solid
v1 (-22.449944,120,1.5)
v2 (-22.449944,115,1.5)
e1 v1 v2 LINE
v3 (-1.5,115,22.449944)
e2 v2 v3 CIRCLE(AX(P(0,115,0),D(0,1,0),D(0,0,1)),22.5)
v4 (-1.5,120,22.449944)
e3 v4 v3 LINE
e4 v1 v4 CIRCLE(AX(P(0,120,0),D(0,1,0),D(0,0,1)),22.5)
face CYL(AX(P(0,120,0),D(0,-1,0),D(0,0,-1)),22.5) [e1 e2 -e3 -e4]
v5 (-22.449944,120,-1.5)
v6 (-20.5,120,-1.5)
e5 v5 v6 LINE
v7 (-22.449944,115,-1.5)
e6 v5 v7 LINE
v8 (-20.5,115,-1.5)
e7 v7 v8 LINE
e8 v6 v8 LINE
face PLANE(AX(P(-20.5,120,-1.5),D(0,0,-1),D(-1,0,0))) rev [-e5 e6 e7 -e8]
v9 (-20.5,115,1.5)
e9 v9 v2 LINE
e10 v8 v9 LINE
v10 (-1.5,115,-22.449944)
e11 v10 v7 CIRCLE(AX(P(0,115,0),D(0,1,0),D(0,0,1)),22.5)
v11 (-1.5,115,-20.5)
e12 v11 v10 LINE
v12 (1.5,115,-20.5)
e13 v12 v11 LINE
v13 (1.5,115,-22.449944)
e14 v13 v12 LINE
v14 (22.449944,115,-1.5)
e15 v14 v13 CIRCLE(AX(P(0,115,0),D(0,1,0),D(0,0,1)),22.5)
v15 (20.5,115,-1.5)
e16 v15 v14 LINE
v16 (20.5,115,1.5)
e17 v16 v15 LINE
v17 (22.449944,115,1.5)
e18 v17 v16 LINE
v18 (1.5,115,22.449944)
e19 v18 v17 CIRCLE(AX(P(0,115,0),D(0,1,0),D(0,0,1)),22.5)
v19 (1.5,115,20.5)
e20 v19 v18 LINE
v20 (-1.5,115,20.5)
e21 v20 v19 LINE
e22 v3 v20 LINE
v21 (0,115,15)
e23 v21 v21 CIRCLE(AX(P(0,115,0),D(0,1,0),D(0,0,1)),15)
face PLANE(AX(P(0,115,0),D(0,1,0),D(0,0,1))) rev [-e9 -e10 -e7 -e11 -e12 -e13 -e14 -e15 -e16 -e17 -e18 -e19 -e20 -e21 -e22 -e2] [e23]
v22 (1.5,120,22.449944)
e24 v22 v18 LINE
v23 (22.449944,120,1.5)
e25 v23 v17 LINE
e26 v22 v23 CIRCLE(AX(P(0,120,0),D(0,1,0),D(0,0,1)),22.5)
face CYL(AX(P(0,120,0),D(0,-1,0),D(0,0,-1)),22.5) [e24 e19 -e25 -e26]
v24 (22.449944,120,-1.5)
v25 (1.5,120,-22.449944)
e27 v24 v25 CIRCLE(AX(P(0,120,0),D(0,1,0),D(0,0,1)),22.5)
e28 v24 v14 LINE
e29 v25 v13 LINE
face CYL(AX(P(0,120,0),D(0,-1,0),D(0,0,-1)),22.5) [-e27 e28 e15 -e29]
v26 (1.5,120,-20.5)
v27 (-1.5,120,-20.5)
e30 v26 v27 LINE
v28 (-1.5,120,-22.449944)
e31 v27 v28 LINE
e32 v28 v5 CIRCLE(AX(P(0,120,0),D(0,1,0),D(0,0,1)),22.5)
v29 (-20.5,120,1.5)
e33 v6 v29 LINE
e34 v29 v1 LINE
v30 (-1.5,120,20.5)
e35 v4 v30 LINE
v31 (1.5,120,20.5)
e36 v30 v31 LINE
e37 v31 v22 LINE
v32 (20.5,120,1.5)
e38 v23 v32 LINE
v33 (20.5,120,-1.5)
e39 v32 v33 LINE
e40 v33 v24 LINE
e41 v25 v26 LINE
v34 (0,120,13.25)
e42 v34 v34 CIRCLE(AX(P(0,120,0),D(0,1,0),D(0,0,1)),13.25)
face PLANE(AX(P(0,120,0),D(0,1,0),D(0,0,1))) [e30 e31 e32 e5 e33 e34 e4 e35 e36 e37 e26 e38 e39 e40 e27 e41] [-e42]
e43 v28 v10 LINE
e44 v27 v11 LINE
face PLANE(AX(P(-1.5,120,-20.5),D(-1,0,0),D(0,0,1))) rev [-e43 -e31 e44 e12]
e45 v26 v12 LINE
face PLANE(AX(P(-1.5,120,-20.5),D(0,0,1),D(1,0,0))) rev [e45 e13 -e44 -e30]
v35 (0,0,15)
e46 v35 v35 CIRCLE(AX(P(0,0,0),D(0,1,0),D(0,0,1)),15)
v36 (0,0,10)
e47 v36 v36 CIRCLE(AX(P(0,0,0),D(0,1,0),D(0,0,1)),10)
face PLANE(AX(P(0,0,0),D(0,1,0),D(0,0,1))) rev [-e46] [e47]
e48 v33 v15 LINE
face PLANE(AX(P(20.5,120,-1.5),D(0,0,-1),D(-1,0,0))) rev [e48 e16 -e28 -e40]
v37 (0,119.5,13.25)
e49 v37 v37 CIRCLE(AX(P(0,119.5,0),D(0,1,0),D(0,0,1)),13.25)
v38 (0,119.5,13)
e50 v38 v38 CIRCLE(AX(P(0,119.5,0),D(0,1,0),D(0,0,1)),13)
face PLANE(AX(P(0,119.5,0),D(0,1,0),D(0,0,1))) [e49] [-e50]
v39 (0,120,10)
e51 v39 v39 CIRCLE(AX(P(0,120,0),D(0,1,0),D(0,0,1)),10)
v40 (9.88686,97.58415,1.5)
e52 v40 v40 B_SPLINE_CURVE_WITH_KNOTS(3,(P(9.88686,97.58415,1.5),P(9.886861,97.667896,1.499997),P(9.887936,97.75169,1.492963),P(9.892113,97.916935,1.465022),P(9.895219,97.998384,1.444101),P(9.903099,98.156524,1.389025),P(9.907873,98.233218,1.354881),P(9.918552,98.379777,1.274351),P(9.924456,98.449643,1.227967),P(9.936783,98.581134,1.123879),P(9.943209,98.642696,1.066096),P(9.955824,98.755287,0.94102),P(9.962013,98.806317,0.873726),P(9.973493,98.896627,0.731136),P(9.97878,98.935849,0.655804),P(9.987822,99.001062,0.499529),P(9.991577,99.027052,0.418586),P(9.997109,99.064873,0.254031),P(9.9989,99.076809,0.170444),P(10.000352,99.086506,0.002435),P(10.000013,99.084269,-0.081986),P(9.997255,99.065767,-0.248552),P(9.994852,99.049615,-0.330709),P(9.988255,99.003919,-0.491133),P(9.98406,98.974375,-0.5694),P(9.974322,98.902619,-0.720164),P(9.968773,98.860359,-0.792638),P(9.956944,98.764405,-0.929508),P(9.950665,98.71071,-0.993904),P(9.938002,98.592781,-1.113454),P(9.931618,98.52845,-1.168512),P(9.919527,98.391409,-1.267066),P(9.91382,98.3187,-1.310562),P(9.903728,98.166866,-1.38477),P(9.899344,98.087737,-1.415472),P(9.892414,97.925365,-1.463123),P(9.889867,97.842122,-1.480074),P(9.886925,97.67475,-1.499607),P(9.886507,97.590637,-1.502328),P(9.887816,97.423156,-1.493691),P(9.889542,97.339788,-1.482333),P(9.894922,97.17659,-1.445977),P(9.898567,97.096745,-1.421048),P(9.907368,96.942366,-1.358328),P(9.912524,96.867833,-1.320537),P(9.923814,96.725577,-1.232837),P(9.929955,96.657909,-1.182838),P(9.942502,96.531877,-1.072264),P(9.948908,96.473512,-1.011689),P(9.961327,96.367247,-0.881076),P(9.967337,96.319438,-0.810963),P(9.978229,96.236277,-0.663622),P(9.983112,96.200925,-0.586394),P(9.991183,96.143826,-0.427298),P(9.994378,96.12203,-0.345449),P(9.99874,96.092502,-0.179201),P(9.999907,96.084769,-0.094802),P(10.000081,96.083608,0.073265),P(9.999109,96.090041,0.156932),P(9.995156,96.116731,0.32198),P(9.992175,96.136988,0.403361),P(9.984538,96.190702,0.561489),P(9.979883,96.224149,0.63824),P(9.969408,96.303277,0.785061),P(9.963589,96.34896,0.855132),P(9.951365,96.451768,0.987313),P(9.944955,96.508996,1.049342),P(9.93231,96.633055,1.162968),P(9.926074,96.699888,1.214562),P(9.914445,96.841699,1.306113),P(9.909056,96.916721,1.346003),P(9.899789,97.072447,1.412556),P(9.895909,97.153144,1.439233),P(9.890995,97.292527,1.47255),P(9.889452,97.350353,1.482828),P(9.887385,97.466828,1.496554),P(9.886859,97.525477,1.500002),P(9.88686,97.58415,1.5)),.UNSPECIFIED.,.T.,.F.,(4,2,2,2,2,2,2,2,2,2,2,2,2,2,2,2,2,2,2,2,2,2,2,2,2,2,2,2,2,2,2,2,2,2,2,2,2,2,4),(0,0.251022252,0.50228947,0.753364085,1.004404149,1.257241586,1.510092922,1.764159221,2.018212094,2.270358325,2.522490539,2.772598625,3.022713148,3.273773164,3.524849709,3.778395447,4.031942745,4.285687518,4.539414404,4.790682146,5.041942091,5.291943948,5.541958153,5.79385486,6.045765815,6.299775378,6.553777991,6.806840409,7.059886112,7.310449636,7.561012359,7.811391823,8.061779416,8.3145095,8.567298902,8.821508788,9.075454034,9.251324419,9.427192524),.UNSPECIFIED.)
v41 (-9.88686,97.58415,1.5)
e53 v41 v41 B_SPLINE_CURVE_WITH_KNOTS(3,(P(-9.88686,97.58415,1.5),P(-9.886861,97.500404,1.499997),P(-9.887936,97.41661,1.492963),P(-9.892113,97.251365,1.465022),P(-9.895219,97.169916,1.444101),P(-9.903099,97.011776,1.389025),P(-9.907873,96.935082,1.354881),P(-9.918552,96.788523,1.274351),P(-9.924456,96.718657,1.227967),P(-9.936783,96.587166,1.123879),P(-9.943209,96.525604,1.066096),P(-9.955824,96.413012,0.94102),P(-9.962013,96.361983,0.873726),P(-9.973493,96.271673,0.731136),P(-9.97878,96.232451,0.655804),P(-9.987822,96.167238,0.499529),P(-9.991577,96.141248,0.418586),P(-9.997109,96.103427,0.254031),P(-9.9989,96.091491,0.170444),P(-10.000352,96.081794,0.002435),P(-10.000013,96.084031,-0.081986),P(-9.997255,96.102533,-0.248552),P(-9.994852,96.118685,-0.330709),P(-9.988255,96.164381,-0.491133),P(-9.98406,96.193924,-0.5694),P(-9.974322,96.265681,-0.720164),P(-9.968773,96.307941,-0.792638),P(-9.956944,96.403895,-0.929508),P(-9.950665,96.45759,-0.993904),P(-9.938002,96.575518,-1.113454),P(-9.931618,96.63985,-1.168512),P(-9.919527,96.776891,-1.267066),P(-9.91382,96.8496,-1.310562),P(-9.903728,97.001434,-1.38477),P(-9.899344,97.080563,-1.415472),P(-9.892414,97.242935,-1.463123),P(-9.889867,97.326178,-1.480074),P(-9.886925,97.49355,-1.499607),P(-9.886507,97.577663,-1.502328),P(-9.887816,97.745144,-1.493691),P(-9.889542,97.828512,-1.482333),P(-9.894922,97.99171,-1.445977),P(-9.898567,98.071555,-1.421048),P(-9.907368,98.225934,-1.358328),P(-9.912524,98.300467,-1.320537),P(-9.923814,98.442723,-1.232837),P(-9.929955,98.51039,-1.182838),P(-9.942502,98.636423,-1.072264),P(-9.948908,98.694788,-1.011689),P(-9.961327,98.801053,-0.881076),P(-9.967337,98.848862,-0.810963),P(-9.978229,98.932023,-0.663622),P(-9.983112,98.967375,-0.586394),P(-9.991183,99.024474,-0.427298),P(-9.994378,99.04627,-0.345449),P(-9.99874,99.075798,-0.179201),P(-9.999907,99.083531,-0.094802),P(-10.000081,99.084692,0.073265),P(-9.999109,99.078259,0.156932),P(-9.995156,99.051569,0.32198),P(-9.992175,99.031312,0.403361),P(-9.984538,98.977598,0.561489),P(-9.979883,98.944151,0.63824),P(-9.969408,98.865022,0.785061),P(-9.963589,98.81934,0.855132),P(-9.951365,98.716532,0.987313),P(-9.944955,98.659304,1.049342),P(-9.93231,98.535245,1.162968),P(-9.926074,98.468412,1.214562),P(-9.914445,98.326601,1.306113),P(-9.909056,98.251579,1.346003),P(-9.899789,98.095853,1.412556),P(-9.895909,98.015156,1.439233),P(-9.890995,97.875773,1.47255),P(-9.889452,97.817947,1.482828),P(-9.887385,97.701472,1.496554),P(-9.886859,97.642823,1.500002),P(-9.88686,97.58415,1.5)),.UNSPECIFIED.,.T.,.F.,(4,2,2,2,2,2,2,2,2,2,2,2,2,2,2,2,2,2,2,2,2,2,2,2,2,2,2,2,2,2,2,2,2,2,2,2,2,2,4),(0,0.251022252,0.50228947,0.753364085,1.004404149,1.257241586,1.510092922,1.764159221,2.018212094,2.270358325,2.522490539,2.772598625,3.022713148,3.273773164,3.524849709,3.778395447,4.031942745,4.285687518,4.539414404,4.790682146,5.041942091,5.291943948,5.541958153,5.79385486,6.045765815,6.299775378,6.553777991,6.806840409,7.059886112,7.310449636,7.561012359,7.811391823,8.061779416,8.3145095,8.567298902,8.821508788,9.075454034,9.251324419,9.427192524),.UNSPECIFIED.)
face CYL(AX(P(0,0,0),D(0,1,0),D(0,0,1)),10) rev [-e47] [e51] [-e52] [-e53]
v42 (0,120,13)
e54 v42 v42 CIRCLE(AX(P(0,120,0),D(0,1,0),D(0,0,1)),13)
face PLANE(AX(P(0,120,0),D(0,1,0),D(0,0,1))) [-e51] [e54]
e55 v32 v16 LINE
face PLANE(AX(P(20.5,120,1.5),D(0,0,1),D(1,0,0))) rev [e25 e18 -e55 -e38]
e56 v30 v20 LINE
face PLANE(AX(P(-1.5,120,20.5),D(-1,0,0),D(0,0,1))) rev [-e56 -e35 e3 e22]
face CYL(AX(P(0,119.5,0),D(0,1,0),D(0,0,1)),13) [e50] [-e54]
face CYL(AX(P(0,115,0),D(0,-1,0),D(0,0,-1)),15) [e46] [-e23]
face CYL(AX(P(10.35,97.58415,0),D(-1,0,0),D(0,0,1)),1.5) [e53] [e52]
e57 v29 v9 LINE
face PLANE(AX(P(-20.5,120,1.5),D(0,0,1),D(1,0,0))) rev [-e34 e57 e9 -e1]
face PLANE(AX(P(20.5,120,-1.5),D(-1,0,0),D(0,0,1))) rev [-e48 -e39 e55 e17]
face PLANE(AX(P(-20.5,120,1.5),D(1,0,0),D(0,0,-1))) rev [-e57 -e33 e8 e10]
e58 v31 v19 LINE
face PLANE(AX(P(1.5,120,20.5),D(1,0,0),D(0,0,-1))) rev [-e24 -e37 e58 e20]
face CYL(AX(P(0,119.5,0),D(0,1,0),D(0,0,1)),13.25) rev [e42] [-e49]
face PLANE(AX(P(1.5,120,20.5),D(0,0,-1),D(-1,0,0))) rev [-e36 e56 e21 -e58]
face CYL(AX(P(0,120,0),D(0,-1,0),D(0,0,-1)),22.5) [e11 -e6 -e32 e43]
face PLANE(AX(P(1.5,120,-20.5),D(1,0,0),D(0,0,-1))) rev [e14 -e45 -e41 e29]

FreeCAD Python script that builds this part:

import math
import FreeCAD as App
import Part
import Sketcher

doc = App.newDocument("Part")
params = doc.addObject("Spreadsheet::Sheet", "Params")
for row, (alias, value) in enumerate([
    ("sketch1_diameter", "30 mm"),
    ("pad1_length", "115 mm"),
    ("sketch2_radius", "22.5 mm"),
    ("sketch2_width", "3 mm"),
    ("pad2_length", "5 mm"),
    ("sketch3_diameter", "26 mm"),
    ("sketch3_diameter2", "26.5 mm"),
    ("pocket1_length", "0.5 mm"),
    ("sketch4_diameter", "20 mm"),
    ("sketch5_diameter", "3 mm"),
    ("pad3_length", "20.7 mm"),
], start=1):
    params.set(f"A{row}", alias)
    params.set(f"B{row}", "=" + value)
    params.setAlias(f"B{row}", alias)

body = doc.addObject("PartDesign::Body", "Body")

# Sketch on XZ plane
sketch1 = body.newObject("Sketcher::SketchObject", "Sketch")
sketch1.AttachmentSupport = (doc.getObject("XZ_Plane"), [""])
sketch1.MapMode = "FlatFace"
sketch1.addGeometry(Part.Circle(App.Vector(0, 0, 0), App.Vector(0, 0, 1), 15), False)
sketch1.addConstraint([
    Sketcher.Constraint("Coincident", 0, 3, -1, 1),
    Sketcher.Constraint("Diameter", 0, 30.0),
])
sketch1.setExpression("Constraints[1]", "Params.sketch1_diameter")
pad1 = body.newObject("PartDesign::Pad", "Pad")
pad1.Profile = sketch1
pad1.setExpression("Length", "Params.pad1_length")
pad1.Reversed = True

# Sketch on XZ plane
sketch2 = body.newObject("Sketcher::SketchObject", "Sketch001")
sketch2.AttachmentSupport = (doc.getObject("XZ_Plane"), [""])
sketch2.MapMode = "FlatFace"
sketch2.AttachmentOffset = App.Placement(App.Vector(0, 0, -115), App.Rotation())
sketch2.addGeometry([
    Part.LineSegment(App.Vector(1.5, -20.5, 0), App.Vector(-1.5, -20.5, 0)),  # 0
    Part.LineSegment(App.Vector(-1.5, -20.5, 0), App.Vector(-1.5, -22.449944, 0)),  # 1
    Part.ArcOfCircle(Part.Circle(App.Vector(0, 0, 0), App.Vector(0, 0, 1), 22.5), math.radians(-176.177446), math.radians(-93.822554)),  # 2
    Part.LineSegment(App.Vector(-22.449944, -1.5, 0), App.Vector(-20.5, -1.5, 0)),  # 3
    Part.LineSegment(App.Vector(-20.5, -1.5, 0), App.Vector(-20.5, 1.5, 0)),  # 4
    Part.LineSegment(App.Vector(-20.5, 1.5, 0), App.Vector(-22.449944, 1.5, 0)),  # 5
    Part.ArcOfCircle(Part.Circle(App.Vector(0, 0, 0), App.Vector(0, 0, 1), 22.5), math.radians(93.822554), math.radians(176.177446)),  # 6
    Part.LineSegment(App.Vector(-1.5, 22.449944, 0), App.Vector(-1.5, 20.5, 0)),  # 7
    Part.LineSegment(App.Vector(-1.5, 20.5, 0), App.Vector(1.5, 20.5, 0)),  # 8
    Part.LineSegment(App.Vector(1.5, 20.5, 0), App.Vector(1.5, 22.449944, 0)),  # 9
    Part.ArcOfCircle(Part.Circle(App.Vector(0, 0, 0), App.Vector(0, 0, 1), 22.5), math.radians(3.822554), math.radians(86.177446)),  # 10
    Part.LineSegment(App.Vector(22.449944, 1.5, 0), App.Vector(20.5, 1.5, 0)),  # 11
    Part.LineSegment(App.Vector(20.5, 1.5, 0), App.Vector(20.5, -1.5, 0)),  # 12
    Part.LineSegment(App.Vector(20.5, -1.5, 0), App.Vector(22.449944, -1.5, 0)),  # 13
    Part.ArcOfCircle(Part.Circle(App.Vector(0, 0, 0), App.Vector(0, 0, 1), 22.5), math.radians(-86.177446), math.radians(-3.822554)),  # 14
    Part.LineSegment(App.Vector(1.5, -22.449944, 0), App.Vector(1.5, -20.5, 0)),  # 15
], False)
sketch2.addConstraint([
    Sketcher.Constraint("Coincident", 0, 2, 1, 1),
    Sketcher.Constraint("Coincident", 1, 2, 2, 2),
    Sketcher.Constraint("Coincident", 2, 1, 3, 1),
    Sketcher.Constraint("Coincident", 3, 2, 4, 1),
    Sketcher.Constraint("Coincident", 4, 2, 5, 1),
    Sketcher.Constraint("Coincident", 5, 2, 6, 2),
    Sketcher.Constraint("Coincident", 6, 1, 7, 1),
    Sketcher.Constraint("Coincident", 7, 2, 8, 1),
    Sketcher.Constraint("Coincident", 8, 2, 9, 1),
    Sketcher.Constraint("Coincident", 9, 2, 10, 2),
    Sketcher.Constraint("Coincident", 10, 1, 11, 1),
    Sketcher.Constraint("Coincident", 11, 2, 12, 1),
    Sketcher.Constraint("Coincident", 12, 2, 13, 1),
    Sketcher.Constraint("Coincident", 13, 2, 14, 2),
    Sketcher.Constraint("Coincident", 14, 1, 15, 1),
    Sketcher.Constraint("Coincident", 15, 2, 0, 1),
    Sketcher.Constraint("Horizontal", 0),
    Sketcher.Constraint("Vertical", 1),
    Sketcher.Constraint("Horizontal", 3),
    Sketcher.Constraint("Vertical", 4),
    Sketcher.Constraint("Horizontal", 5),
    Sketcher.Constraint("Vertical", 7),
    Sketcher.Constraint("Horizontal", 8),
    Sketcher.Constraint("Vertical", 9),
    Sketcher.Constraint("Horizontal", 11),
    Sketcher.Constraint("Vertical", 12),
    Sketcher.Constraint("Horizontal", 13),
    Sketcher.Constraint("Vertical", 15),
    Sketcher.Constraint("Coincident", 2, 3, -1, 1),
    Sketcher.Constraint("Coincident", 6, 3, -1, 1),
    Sketcher.Constraint("Coincident", 10, 3, -1, 1),
    Sketcher.Constraint("Coincident", 14, 3, -1, 1),
    Sketcher.Constraint("Equal", 2, 6),
    Sketcher.Constraint("Equal", 6, 10),
    Sketcher.Constraint("Equal", 10, 14),
    Sketcher.Constraint("Symmetric", 0, 2, 8, 2, -1, 1),
    Sketcher.Constraint("Symmetric", 3, 2, 11, 2, -1, 1),
    Sketcher.Constraint("Horizontal", 6, 1, 9, 2),
    Sketcher.Constraint("Horizontal", 5, 2, 10, 1),
    Sketcher.Constraint("Horizontal", 3, 2, 12, 2),
    Sketcher.Constraint("Horizontal", 1, 2, 14, 1),
    Sketcher.Constraint("Equal", 13, 1),
    Sketcher.Constraint("Equal", 8, 4),
    Sketcher.Constraint("Radius", 2, 22.5),
    Sketcher.Constraint("DistanceX", 0, 2, 0, 1, 3.0),
    Sketcher.Constraint("DistanceY", 0, 2, 2, 1, 19.0),
])
sketch2.setExpression("Constraints[43]", "Params.sketch2_radius")
sketch2.setExpression("Constraints[44]", "Params.sketch2_width")
pad2 = body.newObject("PartDesign::Pad", "Pad001")
pad2.Profile = sketch2
pad2.setExpression("Length", "Params.pad2_length")
pad2.Reversed = True

# Sketch on XZ plane
sketch3 = body.newObject("Sketcher::SketchObject", "Sketch002")
sketch3.AttachmentSupport = (doc.getObject("XZ_Plane"), [""])
sketch3.MapMode = "FlatFace"
sketch3.AttachmentOffset = App.Placement(App.Vector(0, 0, -120), App.Rotation())
sketch3.addGeometry([
    Part.Circle(App.Vector(0, 0, 0), App.Vector(0, 0, 1), 13.25),
    Part.Circle(App.Vector(0, 0, 0), App.Vector(0, 0, 1), 13),
], False)
sketch3.addConstraint([
    Sketcher.Constraint("Coincident", 0, 3, -1, 1),
    Sketcher.Constraint("Coincident", 1, 3, -1, 1),
    Sketcher.Constraint("Diameter", 1, 26.0),
    Sketcher.Constraint("Diameter", 0, 26.5),
])
sketch3.setExpression("Constraints[2]", "Params.sketch3_diameter")
sketch3.setExpression("Constraints[3]", "Params.sketch3_diameter2")
pocket1 = body.newObject("PartDesign::Pocket", "Pocket")
pocket1.Profile = sketch3
pocket1.setExpression("Length", "Params.pocket1_length")
pocket1.Reversed = True

# Sketch on XZ plane
sketch4 = body.newObject("Sketcher::SketchObject", "Sketch003")
sketch4.AttachmentSupport = (doc.getObject("XZ_Plane"), [""])
sketch4.MapMode = "FlatFace"
sketch4.AttachmentOffset = App.Placement(App.Vector(0, 0, -120), App.Rotation())
sketch4.addGeometry(Part.Circle(App.Vector(0, 0, 0), App.Vector(0, 0, 1), 10), False)
sketch4.addConstraint([
    Sketcher.Constraint("Coincident", 0, 3, -1, 1),
    Sketcher.Constraint("Diameter", 0, 20.0),
])
sketch4.setExpression("Constraints[1]", "Params.sketch4_diameter")
pocket2 = body.newObject("PartDesign::Pocket", "Pocket001")
pocket2.Profile = sketch4
pocket2.Type = "ThroughAll"
pocket2.Reversed = True

# Sketch on YZ plane
sketch5 = body.newObject("Sketcher::SketchObject", "Sketch004")
sketch5.AttachmentSupport = (doc.getObject("YZ_Plane"), [""])
sketch5.MapMode = "FlatFace"
sketch5.addGeometry(Part.Circle(App.Vector(97.58415, 0, 0), App.Vector(0, 0, 1), 1.5), False)
sketch5.addConstraint([
    Sketcher.Constraint("PointOnObject", 0, 3, -1),
    Sketcher.Constraint("Diameter", 0, 3.0),
    Sketcher.Constraint("DistanceX", -1, 1, 0, 3, 97.58415),
])
sketch5.setExpression("Constraints[1]", "Params.sketch5_diameter")
pad3 = body.newObject("PartDesign::Pad", "Pad002")
pad3.Profile = sketch5
pad3.setExpression("Length", "Params.pad3_length")
pad3.Midplane = True

doc.recompute()
